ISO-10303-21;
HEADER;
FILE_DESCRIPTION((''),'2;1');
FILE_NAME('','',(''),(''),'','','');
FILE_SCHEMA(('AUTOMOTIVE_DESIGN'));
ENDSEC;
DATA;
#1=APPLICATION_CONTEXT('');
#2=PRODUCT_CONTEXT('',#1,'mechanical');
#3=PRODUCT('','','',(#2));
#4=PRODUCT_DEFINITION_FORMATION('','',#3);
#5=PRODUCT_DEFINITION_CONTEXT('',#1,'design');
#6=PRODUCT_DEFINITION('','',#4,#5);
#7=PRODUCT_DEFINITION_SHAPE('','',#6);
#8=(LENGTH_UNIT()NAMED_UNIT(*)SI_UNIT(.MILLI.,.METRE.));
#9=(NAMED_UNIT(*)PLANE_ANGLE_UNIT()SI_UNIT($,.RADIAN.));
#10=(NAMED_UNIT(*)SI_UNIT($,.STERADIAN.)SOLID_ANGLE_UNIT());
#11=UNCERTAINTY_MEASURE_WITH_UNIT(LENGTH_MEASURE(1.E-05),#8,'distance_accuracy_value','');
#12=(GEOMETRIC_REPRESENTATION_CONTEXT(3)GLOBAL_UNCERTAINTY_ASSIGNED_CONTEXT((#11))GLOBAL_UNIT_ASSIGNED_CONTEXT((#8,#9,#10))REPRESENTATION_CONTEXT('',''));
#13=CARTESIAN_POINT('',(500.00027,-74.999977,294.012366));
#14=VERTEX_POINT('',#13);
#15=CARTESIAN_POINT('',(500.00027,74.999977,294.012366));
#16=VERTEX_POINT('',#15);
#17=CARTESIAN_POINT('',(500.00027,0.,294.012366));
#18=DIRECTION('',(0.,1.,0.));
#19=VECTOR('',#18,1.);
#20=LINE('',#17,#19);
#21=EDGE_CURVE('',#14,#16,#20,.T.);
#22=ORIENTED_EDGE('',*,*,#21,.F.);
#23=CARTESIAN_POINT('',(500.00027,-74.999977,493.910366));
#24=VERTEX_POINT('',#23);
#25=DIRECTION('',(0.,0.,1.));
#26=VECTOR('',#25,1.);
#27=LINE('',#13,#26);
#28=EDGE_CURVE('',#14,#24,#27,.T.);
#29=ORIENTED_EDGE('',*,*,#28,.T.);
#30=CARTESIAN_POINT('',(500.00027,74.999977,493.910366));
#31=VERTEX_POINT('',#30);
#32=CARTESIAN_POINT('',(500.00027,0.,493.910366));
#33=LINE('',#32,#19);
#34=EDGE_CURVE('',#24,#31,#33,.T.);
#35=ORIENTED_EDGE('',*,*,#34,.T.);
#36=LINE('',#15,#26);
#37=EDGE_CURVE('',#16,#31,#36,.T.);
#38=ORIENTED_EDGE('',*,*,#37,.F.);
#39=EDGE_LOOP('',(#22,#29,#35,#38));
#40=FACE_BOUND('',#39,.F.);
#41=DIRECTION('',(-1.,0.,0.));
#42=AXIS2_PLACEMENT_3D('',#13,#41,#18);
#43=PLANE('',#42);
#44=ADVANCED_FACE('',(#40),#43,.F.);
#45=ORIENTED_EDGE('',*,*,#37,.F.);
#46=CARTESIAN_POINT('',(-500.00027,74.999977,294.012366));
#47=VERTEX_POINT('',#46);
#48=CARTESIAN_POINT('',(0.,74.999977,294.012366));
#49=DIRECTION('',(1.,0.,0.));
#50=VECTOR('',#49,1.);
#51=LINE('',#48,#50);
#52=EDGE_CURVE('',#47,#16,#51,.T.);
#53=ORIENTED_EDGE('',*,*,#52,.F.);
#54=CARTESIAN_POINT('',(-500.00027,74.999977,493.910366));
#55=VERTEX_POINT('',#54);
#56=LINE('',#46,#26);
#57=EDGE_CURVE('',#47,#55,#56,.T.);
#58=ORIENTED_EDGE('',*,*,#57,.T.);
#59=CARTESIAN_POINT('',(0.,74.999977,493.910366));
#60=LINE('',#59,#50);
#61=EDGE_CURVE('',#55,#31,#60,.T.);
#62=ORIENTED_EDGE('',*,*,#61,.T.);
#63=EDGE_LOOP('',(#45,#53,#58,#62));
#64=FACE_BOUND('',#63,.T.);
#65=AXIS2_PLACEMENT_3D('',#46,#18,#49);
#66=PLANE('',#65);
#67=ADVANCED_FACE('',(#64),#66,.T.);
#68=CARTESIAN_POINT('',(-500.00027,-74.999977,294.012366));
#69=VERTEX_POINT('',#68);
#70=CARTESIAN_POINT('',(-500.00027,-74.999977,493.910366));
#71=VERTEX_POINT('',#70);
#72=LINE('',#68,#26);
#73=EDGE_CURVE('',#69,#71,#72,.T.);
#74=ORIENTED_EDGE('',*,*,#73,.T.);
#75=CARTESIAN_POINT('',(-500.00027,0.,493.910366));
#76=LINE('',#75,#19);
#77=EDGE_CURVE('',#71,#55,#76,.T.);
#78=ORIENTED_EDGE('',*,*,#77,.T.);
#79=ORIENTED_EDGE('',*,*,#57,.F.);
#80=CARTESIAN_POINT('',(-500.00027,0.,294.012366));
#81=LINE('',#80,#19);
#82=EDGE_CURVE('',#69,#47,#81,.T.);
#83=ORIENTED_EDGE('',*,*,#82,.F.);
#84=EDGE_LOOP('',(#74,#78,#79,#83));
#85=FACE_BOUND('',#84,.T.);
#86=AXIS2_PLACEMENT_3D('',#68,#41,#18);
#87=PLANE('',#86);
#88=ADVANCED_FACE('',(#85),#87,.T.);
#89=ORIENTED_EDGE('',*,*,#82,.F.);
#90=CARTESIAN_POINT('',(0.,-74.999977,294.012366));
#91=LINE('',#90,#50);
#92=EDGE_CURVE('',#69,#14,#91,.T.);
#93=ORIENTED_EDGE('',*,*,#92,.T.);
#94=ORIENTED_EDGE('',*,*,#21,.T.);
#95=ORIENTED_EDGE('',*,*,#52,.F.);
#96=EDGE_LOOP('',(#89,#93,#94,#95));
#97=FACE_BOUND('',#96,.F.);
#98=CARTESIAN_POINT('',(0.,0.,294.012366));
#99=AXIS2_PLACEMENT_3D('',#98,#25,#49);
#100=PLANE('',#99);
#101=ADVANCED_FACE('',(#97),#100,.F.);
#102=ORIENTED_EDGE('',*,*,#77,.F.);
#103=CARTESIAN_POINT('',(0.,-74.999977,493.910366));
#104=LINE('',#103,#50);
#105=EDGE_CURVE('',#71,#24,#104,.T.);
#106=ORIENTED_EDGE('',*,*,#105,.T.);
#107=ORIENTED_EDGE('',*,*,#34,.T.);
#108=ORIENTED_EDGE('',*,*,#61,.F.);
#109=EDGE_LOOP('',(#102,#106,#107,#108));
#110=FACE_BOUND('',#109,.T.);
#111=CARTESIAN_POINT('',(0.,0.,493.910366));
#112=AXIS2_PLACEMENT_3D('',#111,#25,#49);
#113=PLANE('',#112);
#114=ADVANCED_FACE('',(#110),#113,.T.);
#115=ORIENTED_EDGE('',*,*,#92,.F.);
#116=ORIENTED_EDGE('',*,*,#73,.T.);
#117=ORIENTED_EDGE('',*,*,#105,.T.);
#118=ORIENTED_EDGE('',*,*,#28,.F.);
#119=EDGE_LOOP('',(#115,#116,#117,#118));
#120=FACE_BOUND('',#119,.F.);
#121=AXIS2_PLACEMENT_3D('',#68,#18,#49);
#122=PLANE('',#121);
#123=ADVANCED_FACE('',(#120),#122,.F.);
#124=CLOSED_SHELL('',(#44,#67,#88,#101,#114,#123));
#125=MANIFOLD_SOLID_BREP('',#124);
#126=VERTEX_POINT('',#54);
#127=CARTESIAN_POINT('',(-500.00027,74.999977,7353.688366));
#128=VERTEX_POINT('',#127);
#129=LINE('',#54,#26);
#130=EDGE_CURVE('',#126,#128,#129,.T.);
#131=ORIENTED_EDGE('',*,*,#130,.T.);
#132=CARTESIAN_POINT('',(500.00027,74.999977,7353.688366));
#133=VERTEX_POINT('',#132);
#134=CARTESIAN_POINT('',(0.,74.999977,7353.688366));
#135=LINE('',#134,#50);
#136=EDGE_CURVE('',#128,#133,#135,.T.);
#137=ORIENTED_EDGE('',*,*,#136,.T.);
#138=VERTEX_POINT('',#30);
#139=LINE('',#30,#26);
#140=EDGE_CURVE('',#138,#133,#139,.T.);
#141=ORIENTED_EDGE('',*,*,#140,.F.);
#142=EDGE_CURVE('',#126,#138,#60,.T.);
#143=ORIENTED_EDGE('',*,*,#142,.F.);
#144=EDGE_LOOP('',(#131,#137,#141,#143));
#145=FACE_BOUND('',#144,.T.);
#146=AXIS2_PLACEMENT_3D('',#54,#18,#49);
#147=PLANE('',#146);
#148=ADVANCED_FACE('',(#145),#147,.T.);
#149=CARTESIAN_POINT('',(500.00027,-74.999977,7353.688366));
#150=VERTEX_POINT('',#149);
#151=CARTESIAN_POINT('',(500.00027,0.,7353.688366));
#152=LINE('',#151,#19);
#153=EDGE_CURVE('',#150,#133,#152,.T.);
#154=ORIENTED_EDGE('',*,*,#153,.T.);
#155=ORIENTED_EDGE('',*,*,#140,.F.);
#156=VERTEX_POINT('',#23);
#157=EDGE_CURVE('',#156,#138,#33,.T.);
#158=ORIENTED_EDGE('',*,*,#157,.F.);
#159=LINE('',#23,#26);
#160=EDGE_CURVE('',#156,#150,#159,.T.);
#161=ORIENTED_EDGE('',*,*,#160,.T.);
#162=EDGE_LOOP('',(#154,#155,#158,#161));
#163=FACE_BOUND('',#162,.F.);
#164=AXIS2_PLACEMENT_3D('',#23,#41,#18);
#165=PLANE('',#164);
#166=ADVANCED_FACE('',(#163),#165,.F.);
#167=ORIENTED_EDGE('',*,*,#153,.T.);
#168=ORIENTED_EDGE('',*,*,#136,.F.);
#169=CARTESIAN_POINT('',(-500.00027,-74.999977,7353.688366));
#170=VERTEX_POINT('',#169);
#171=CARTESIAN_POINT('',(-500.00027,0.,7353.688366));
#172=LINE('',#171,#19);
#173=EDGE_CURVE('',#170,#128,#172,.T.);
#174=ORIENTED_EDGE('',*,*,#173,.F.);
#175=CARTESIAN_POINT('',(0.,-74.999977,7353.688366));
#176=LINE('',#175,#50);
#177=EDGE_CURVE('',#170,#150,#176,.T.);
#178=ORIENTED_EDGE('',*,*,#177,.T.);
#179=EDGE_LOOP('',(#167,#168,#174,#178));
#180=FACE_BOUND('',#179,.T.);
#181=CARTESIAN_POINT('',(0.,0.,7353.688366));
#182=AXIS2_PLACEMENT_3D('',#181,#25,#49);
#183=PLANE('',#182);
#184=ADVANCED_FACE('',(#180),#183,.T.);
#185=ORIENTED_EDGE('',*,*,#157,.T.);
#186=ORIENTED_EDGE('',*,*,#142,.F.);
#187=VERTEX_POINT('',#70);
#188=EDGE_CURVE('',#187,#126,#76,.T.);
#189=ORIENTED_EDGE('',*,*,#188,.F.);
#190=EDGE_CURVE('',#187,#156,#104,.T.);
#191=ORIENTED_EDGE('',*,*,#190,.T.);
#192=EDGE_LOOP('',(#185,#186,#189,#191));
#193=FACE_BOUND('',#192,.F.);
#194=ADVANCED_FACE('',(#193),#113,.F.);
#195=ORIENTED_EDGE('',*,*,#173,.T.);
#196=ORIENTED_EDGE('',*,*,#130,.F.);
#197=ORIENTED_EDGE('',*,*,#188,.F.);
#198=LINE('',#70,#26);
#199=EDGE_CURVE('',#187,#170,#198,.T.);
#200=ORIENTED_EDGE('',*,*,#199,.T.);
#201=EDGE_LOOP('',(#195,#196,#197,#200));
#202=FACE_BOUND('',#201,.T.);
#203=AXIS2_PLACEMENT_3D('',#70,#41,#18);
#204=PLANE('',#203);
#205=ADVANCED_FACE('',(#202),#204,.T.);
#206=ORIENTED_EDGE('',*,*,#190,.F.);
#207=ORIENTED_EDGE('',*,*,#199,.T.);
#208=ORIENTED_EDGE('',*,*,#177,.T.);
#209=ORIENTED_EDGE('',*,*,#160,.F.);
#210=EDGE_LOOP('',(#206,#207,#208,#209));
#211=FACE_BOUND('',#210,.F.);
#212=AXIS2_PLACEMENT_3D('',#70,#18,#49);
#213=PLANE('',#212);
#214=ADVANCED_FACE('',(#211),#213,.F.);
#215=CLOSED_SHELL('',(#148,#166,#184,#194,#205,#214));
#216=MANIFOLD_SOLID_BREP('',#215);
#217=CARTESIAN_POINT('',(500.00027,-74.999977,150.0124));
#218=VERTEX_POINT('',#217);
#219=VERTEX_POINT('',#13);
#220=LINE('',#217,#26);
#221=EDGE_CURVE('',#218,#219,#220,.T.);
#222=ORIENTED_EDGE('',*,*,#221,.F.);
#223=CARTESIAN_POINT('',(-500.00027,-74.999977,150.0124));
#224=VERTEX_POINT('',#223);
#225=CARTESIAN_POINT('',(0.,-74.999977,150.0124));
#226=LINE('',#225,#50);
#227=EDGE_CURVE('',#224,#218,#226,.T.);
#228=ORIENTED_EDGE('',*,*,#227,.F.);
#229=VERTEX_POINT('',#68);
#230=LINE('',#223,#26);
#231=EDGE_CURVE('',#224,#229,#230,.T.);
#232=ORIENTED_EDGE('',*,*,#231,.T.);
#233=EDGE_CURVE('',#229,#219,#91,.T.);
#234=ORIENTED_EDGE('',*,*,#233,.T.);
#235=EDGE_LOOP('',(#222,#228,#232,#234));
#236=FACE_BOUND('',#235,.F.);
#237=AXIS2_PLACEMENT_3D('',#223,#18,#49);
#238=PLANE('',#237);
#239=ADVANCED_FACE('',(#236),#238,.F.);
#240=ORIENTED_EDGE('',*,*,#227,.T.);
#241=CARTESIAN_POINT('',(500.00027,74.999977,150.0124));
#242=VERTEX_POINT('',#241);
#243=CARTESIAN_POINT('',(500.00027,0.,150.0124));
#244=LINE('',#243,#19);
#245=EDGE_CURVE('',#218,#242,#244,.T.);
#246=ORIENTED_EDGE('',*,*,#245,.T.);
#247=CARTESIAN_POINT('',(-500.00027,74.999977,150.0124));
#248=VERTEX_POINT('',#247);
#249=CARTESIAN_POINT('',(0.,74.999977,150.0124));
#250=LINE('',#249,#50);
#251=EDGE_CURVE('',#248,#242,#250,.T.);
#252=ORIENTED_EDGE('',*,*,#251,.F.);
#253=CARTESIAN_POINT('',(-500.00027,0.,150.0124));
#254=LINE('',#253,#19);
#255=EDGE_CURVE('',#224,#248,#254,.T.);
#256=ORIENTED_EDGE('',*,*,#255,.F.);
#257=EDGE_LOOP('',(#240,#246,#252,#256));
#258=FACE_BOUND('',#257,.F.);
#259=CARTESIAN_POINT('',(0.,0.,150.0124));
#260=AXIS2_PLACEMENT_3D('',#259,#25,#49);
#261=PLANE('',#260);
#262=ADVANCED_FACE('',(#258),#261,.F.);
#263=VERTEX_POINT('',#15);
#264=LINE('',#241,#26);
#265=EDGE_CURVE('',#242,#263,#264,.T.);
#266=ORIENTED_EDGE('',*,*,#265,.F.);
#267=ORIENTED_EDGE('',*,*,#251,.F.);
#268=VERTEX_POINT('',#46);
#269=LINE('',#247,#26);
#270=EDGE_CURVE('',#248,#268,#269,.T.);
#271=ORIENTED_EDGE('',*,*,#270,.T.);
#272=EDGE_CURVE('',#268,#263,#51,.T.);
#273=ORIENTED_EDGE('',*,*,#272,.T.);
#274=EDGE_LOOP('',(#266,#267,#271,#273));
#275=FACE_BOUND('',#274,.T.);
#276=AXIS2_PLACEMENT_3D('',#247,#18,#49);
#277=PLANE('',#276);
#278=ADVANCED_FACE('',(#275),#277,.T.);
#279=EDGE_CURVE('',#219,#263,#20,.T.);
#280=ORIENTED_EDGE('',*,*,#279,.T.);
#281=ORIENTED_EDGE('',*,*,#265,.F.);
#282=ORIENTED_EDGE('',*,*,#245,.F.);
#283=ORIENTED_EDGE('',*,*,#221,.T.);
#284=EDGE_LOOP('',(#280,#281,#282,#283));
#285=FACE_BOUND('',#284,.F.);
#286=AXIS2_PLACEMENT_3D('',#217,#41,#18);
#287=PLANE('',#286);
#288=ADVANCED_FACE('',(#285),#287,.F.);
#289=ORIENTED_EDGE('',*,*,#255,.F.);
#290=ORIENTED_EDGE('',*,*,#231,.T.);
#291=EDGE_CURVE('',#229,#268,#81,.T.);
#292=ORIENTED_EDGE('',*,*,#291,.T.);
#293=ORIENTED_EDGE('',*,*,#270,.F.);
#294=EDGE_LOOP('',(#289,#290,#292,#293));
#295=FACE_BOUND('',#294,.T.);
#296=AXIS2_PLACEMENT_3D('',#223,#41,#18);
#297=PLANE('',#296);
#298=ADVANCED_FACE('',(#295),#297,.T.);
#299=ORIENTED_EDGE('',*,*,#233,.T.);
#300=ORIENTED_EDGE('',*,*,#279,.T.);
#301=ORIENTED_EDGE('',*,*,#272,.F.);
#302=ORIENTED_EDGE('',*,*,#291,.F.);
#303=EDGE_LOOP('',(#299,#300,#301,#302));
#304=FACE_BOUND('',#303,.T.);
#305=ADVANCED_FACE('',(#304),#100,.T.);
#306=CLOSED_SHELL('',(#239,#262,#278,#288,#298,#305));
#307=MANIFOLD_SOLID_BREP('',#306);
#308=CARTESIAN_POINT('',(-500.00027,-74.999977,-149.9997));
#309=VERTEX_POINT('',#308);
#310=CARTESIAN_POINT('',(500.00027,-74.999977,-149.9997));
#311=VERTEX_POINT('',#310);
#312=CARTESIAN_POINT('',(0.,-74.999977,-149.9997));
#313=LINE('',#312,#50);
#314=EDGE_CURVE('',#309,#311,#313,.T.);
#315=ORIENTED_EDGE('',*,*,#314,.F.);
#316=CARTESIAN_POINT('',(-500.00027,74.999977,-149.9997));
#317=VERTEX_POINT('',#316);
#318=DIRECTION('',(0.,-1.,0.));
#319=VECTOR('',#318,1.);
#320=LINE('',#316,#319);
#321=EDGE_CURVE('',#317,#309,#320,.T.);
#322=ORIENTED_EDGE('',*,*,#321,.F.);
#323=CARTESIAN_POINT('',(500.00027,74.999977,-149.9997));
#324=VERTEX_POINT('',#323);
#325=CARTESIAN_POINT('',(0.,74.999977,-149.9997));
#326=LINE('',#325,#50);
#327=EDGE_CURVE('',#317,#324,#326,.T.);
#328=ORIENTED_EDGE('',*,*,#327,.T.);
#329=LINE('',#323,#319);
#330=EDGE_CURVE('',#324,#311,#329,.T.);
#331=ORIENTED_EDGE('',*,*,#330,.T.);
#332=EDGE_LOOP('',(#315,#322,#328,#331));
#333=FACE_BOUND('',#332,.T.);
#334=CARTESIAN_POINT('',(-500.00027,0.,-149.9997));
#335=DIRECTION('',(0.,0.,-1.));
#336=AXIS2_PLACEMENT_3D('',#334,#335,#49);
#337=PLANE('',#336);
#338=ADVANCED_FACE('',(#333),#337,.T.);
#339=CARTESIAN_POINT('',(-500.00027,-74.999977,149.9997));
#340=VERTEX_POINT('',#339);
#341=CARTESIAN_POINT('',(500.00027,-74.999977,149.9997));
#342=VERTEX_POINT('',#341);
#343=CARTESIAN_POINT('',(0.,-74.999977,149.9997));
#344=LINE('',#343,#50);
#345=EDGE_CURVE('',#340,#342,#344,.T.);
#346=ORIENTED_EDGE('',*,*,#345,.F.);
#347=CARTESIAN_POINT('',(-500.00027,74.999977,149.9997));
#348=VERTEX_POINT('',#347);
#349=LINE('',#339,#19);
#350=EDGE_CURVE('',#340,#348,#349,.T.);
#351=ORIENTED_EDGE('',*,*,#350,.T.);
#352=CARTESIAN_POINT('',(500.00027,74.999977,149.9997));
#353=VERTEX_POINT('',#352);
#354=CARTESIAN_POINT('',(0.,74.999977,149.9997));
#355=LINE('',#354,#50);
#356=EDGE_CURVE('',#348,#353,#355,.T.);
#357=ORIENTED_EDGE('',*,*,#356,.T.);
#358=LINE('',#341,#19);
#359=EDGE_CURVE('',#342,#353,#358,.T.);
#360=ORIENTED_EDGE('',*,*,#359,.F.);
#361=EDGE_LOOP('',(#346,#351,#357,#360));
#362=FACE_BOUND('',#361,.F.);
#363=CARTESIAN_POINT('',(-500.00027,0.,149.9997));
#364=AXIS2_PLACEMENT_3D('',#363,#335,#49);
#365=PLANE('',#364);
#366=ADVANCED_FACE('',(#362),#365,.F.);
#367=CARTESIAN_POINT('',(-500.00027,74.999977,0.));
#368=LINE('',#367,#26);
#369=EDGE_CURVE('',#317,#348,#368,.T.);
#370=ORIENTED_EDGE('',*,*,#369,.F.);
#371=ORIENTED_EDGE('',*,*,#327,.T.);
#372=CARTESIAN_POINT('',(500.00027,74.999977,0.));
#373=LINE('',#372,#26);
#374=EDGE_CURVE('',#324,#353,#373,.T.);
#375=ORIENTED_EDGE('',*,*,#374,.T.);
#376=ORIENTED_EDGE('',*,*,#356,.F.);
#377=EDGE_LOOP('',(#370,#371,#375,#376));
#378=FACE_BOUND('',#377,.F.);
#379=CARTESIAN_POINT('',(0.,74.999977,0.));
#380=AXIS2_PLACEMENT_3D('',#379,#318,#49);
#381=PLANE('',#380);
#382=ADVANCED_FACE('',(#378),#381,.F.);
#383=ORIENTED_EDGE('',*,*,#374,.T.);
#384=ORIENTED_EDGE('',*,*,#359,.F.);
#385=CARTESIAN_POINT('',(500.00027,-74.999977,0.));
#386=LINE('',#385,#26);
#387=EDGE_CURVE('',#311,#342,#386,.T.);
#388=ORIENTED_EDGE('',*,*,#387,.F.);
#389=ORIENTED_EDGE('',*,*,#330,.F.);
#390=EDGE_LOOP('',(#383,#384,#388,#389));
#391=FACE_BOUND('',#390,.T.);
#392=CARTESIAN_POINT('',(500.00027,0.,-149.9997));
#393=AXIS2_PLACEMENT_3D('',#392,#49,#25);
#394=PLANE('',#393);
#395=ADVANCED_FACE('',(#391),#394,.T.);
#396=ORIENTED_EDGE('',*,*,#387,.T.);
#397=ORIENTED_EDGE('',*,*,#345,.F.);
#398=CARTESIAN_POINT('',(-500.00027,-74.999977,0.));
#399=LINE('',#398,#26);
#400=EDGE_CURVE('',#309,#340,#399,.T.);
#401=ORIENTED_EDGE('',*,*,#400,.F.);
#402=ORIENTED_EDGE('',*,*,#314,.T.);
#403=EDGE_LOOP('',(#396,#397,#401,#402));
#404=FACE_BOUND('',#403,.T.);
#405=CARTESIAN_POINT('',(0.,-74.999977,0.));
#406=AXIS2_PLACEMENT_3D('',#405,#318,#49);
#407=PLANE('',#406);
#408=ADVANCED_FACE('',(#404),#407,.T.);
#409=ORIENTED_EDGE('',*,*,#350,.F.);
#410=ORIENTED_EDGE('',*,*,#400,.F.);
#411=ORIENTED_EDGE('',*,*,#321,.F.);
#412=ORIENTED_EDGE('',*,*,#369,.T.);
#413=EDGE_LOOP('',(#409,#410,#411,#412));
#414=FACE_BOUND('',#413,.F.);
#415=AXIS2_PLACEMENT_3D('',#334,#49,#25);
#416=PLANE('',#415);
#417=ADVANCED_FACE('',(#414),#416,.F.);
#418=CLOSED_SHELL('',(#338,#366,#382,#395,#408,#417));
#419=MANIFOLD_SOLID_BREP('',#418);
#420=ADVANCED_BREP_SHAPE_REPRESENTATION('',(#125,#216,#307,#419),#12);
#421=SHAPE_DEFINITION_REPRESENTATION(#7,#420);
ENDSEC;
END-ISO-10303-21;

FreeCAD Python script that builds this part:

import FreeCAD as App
import Part
import Sketcher
Q = App.Units.Quantity

doc = App.newDocument("Part")
params = doc.addObject("Spreadsheet::Sheet", "Params")
for row, (alias, value) in enumerate([
    ("sketch1_height", "11.811 in"),
    ("pad1_length", "149.999954 mm"),
    ("pad2_length", "143.999966 mm"),
    ("pad3_length", "7.87 in"),
    ("pad4_length", "270.07 in"),
], start=1):
    params.set(f"A{row}", alias)
    params.set(f"B{row}", "=" + value)
    params.setAlias(f"B{row}", alias)

body = doc.addObject("PartDesign::Body", "Body")

sketch1 = body.newObject("Sketcher::SketchObject", "Sketch")
sketch1.AttachmentSupport = (doc.getObject("XZ_Plane"), [""])
sketch1.MapMode = "FlatFace"
sketch1.addGeometry([
    Part.LineSegment(App.Vector(-500.00027, 149.9997, 0), App.Vector(-500.00027, -149.9997, 0)),
    Part.LineSegment(App.Vector(-500.00027, -149.9997, 0), App.Vector(500.00027, -149.9997, 0)),
    Part.LineSegment(App.Vector(500.00027, -149.9997, 0), App.Vector(500.00027, 149.9997, 0)),
    Part.LineSegment(App.Vector(500.00027, 149.9997, 0), App.Vector(-500.00027, 149.9997, 0)),
], False)
sketch1.addConstraint([
    Sketcher.Constraint("Coincident", 0, 2, 1, 1),
    Sketcher.Constraint("Coincident", 1, 2, 2, 1),
    Sketcher.Constraint("Coincident", 2, 2, 3, 1),
    Sketcher.Constraint("Coincident", 3, 2, 0, 1),
    Sketcher.Constraint("Vertical", 0),
    Sketcher.Constraint("Horizontal", 1),
    Sketcher.Constraint("Vertical", 2),
    Sketcher.Constraint("Horizontal", 3),
    Sketcher.Constraint("Symmetric", 0, 2, 2, 2, -1, 1),
    Sketcher.Constraint("DistanceY", 0, 2, 0, 1, Q("11.811 in")),
    Sketcher.Constraint("DistanceX", 1, 1, 1, 2, Q("39.3701 in")),
])
sketch1.setExpression("Constraints[9]", "Params.sketch1_height")
pad1 = body.newObject("PartDesign::Pad", "Pad")
pad1.Profile = sketch1
pad1.setExpression("Length", "Params.pad1_length")
pad1.Midplane = True
body2 = doc.addObject("PartDesign::Body", "Body001")

sketch2 = body2.newObject("Sketcher::SketchObject", "Sketch001")
sketch2.AttachmentSupport = (doc.getObject("XY_Plane001"), [""])
sketch2.MapMode = "FlatFace"
sketch2.AttachmentOffset = App.Placement(App.Vector(0, 0, 5.906 * 25.4), App.Rotation())
sketch2.addGeometry([
    Part.LineSegment(App.Vector(-500.00027, 74.999977, 0), App.Vector(-500.00027, -74.999977, 0)),
    Part.LineSegment(App.Vector(-500.00027, -74.999977, 0), App.Vector(500.00027, -74.999977, 0)),
    Part.LineSegment(App.Vector(500.00027, -74.999977, 0), App.Vector(500.00027, 74.999977, 0)),
    Part.LineSegment(App.Vector(500.00027, 74.999977, 0), App.Vector(-500.00027, 74.999977, 0)),
], False)
sketch2.addConstraint([
    Sketcher.Constraint("Coincident", 0, 2, 1, 1),
    Sketcher.Constraint("Coincident", 1, 2, 2, 1),
    Sketcher.Constraint("Coincident", 2, 2, 3, 1),
    Sketcher.Constraint("Coincident", 3, 2, 0, 1),
    Sketcher.Constraint("Vertical", 0),
    Sketcher.Constraint("Horizontal", 1),
    Sketcher.Constraint("Vertical", 2),
    Sketcher.Constraint("Horizontal", 3),
    Sketcher.Constraint("Symmetric", 0, 2, 2, 2, -1, 1),
    Sketcher.Constraint("DistanceX", 1, 1, 1, 2, Q("39.3701 in")),
    Sketcher.Constraint("DistanceY", 0, 2, 0, 1, 149.999954),
])
pad2 = body2.newObject("PartDesign::Pad", "Pad001")
pad2.Profile = sketch2
pad2.setExpression("Length", "Params.pad2_length")
body3 = doc.addObject("PartDesign::Body", "Body002")

sketch3 = body3.newObject("Sketcher::SketchObject", "Sketch002")
sketch3.AttachmentSupport = (doc.getObject("XY_Plane002"), [""])
sketch3.MapMode = "FlatFace"
sketch3.AttachmentOffset = App.Placement(App.Vector(0, 0, 294.012366), App.Rotation())
sketch3.addGeometry([
    Part.LineSegment(App.Vector(-500.00027, 74.999977, 0), App.Vector(-500.00027, -74.999977, 0)),
    Part.LineSegment(App.Vector(-500.00027, -74.999977, 0), App.Vector(500.00027, -74.999977, 0)),
    Part.LineSegment(App.Vector(500.00027, -74.999977, 0), App.Vector(500.00027, 74.999977, 0)),
    Part.LineSegment(App.Vector(500.00027, 74.999977, 0), App.Vector(-500.00027, 74.999977, 0)),
], False)
sketch3.addConstraint([
    Sketcher.Constraint("Coincident", 0, 2, 1, 1),
    Sketcher.Constraint("Coincident", 1, 2, 2, 1),
    Sketcher.Constraint("Coincident", 2, 2, 3, 1),
    Sketcher.Constraint("Coincident", 3, 2, 0, 1),
    Sketcher.Constraint("Vertical", 0),
    Sketcher.Constraint("Horizontal", 1),
    Sketcher.Constraint("Vertical", 2),
    Sketcher.Constraint("Horizontal", 3),
    Sketcher.Constraint("Symmetric", 0, 2, 2, 2, -1, 1),
    Sketcher.Constraint("DistanceX", 1, 1, 1, 2, Q("39.3701 in")),
    Sketcher.Constraint("DistanceY", 0, 2, 0, 1, 149.999954),
])
pad3 = body3.newObject("PartDesign::Pad", "Pad002")
pad3.Profile = sketch3
pad3.setExpression("Length", "Params.pad3_length")
body4 = doc.addObject("PartDesign::Body", "Body003")

sketch4 = body4.newObject("Sketcher::SketchObject", "Sketch003")
sketch4.AttachmentSupport = (doc.getObject("XY_Plane003"), [""])
sketch4.MapMode = "FlatFace"
sketch4.AttachmentOffset = App.Placement(App.Vector(0, 0, 493.910366), App.Rotation())
sketch4.addGeometry([
    Part.LineSegment(App.Vector(-500.00027, 74.999977, 0), App.Vector(-500.00027, -74.999977, 0)),
    Part.LineSegment(App.Vector(-500.00027, -74.999977, 0), App.Vector(500.00027, -74.999977, 0)),
    Part.LineSegment(App.Vector(500.00027, -74.999977, 0), App.Vector(500.00027, 74.999977, 0)),
    Part.LineSegment(App.Vector(500.00027, 74.999977, 0), App.Vector(-500.00027, 74.999977, 0)),
], False)
sketch4.addConstraint([
    Sketcher.Constraint("Coincident", 0, 2, 1, 1),
    Sketcher.Constraint("Coincident", 1, 2, 2, 1),
    Sketcher.Constraint("Coincident", 2, 2, 3, 1),
    Sketcher.Constraint("Coincident", 3, 2, 0, 1),
    Sketcher.Constraint("Vertical", 0),
    Sketcher.Constraint("Horizontal", 1),
    Sketcher.Constraint("Vertical", 2),
    Sketcher.Constraint("Horizontal", 3),
    Sketcher.Constraint("Symmetric", 0, 2, 2, 2, -1, 1),
    Sketcher.Constraint("DistanceX", 1, 1, 1, 2, Q("39.3701 in")),
    Sketcher.Constraint("DistanceY", 0, 2, 0, 1, 149.999954),
])
pad4 = body4.newObject("PartDesign::Pad", "Pad003")
pad4.Profile = sketch4
pad4.setExpression("Length", "Params.pad4_length")

doc.recompute()
